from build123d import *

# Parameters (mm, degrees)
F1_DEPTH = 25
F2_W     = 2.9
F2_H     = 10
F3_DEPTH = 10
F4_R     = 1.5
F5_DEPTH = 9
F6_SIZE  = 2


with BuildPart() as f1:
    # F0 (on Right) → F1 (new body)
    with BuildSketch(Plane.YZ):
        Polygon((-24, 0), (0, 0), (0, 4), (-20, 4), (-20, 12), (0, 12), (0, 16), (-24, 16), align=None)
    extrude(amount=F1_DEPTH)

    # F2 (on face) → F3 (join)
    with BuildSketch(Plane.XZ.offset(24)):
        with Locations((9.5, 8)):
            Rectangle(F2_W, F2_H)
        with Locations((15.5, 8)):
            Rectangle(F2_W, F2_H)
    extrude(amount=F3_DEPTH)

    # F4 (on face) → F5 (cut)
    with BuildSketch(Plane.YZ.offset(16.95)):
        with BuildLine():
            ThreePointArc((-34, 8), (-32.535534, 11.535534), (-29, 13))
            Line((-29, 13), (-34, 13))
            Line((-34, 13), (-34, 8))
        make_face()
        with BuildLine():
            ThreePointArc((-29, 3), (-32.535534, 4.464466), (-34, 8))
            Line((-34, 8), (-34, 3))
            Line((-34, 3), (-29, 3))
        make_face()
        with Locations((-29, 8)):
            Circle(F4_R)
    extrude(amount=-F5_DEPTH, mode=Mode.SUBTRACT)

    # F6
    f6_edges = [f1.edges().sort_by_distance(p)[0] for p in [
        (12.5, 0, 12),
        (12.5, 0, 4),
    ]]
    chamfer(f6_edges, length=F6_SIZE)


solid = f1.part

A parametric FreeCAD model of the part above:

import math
import FreeCAD as App
import Part
import Sketcher
from FreeCAD import Vector
Q = App.Units.Quantity


def edges_at(feature, points):
    """Names of the edges that pass closest to the given points."""
    edges = feature.Shape.Edges
    near = lambda p: min(range(len(edges)), key=lambda i: edges[i].distToShape(Part.Vertex(*p))[0])
    return sorted({f"Edge{near(p) + 1}" for p in points})


def add_polygon(sketch, points):
    """Adds a closed chain of lines whose ends are joined by coincident constraints."""
    first, n = sketch.GeometryCount, len(points)
    for a, b in zip(points, points[1:] + points[:1]):
        sketch.addGeometry(Part.LineSegment(App.Vector(*a, 0), App.Vector(*b, 0)), False)
    for i in range(n):
        sketch.addConstraint(Sketcher.Constraint("Coincident", first + i, 2, first + (i + 1) % n, 1))

doc = App.newDocument("Part")
params = doc.addObject("Spreadsheet::Sheet", "Params")
for row, (alias, value) in enumerate([
    ("sketch1_width", "24 mm"),
    ("sketch1_width2", "20 mm"),
    ("sketch1_height", "4 mm"),
    ("sketch1_height2", "8 mm"),
    ("pad1_length", "25 mm"),
    ("sketch2_height", "10 mm"),
    ("sketch2_width", "2.9 mm"),
    ("pad2_length", "10 mm"),
    ("sketch3_diameter", "3 mm"),
    ("sketch3_radius", "5 mm"),
    ("pocket1_length", "9 mm"),
    ("chamfer_size", "2 mm"),
], start=1):
    params.set(f"A{row}", alias)
    params.set(f"B{row}", "=" + value)
    params.setAlias(f"B{row}", alias)

body = doc.addObject("PartDesign::Body", "Body")

# Sketch on YZ plane
sketch1 = doc.addObject("Sketcher::SketchObject", "Sketch")
body.addObject(sketch1)
sketch1.AttachmentSupport = (doc.YZ_Plane, [""])
sketch1.MapMode = "FlatFace"
add_polygon(sketch1, [(-24, 0), (0, 0), (0, 4), (-20, 4), (-20, 12), (0, 12), (0, 16), (-24, 16)])  # lines 0-7
sketch1.addConstraint(Sketcher.Constraint("Horizontal", 0))
sketch1.addConstraint(Sketcher.Constraint("Vertical", 1))
sketch1.addConstraint(Sketcher.Constraint("Horizontal", 2))
sketch1.addConstraint(Sketcher.Constraint("Vertical", 3))
sketch1.addConstraint(Sketcher.Constraint("Horizontal", 4))
sketch1.addConstraint(Sketcher.Constraint("Vertical", 5))
sketch1.addConstraint(Sketcher.Constraint("Horizontal", 6))
sketch1.addConstraint(Sketcher.Constraint("Vertical", 7))
sketch1.addConstraint(Sketcher.Constraint("Coincident", 0, 2, -1, 1))
sketch1.addConstraint(Sketcher.Constraint("PointOnObject", 4, 2, -2))
sketch1.addConstraint(Sketcher.Constraint("Equal", 1, 5))
sketch1.addConstraint(Sketcher.Constraint("DistanceX", 0, 1, 0, 2, Q("24 mm")))
sketch1.addConstraint(Sketcher.Constraint("DistanceX", 2, 2, 2, 1, Q("20 mm")))
sketch1.addConstraint(Sketcher.Constraint("DistanceY", 1, 1, 1, 2, Q("4 mm")))
sketch1.addConstraint(Sketcher.Constraint("DistanceY", 3, 1, 3, 2, Q("8 mm")))
sketch1.setExpression("Constraints[19]", "Params.sketch1_width")
sketch1.setExpression("Constraints[20]", "Params.sketch1_width2")
sketch1.setExpression("Constraints[21]", "Params.sketch1_height")
sketch1.setExpression("Constraints[22]", "Params.sketch1_height2")
pad1 = doc.addObject("PartDesign::Pad", "Pad")
body.addObject(pad1)
pad1.Profile = sketch1
pad1.setExpression("Length", "Params.pad1_length")

# Sketch on XZ plane
sketch2 = doc.addObject("Sketcher::SketchObject", "Sketch001")
body.addObject(sketch2)
sketch2.AttachmentSupport = (doc.XZ_Plane, [""])
sketch2.MapMode = "FlatFace"
sketch2.AttachmentOffset = App.Placement(Vector(0, 0, 24), App.Rotation())
add_polygon(sketch2, [(8.05, 13), (8.05, 3), (10.95, 3), (10.95, 13)])  # lines 0-3
add_polygon(sketch2, [(14.05, 13), (14.05, 3), (16.95, 3), (16.95, 13)])  # lines 4-7
sketch2.addConstraint(Sketcher.Constraint("Vertical", 0))
sketch2.addConstraint(Sketcher.Constraint("Horizontal", 1))
sketch2.addConstraint(Sketcher.Constraint("Vertical", 2))
sketch2.addConstraint(Sketcher.Constraint("Horizontal", 3))
sketch2.addConstraint(Sketcher.Constraint("Vertical", 4))
sketch2.addConstraint(Sketcher.Constraint("Horizontal", 5))
sketch2.addConstraint(Sketcher.Constraint("Vertical", 6))
sketch2.addConstraint(Sketcher.Constraint("Horizontal", 7))
sketch2.addConstraint(Sketcher.Constraint("Horizontal", 1, 2, 4, 2))
sketch2.addConstraint(Sketcher.Constraint("Horizontal", 3, 2, 6, 2))
sketch2.addConstraint(Sketcher.Constraint("Equal", 3, 5))
sketch2.addConstraint(Sketcher.Constraint("DistanceY", 0, 2, 0, 1, Q("10 mm")))
sketch2.addConstraint(Sketcher.Constraint("DistanceX", 1, 1, 1, 2, Q("2.9 mm")))
sketch2.addConstraint(Sketcher.Constraint("DistanceY", -1, 1, 0, 2, Q("3 mm")))
sketch2.addConstraint(Sketcher.Constraint("DistanceX", 0, 2, 4, 2, Q("6 mm")))
sketch2.addConstraint(Sketcher.Constraint("DistanceX", -1, 1, 0, 2, Q("8.05 mm")))
sketch2.setExpression("Constraints[19]", "Params.sketch2_height")
sketch2.setExpression("Constraints[20]", "Params.sketch2_width")
pad2 = doc.addObject("PartDesign::Pad", "Pad001")
body.addObject(pad2)
pad2.Profile = sketch2
pad2.setExpression("Length", "Params.pad2_length")

# Sketch on YZ plane
sketch3 = doc.addObject("Sketcher::SketchObject", "Sketch002")
body.addObject(sketch3)
sketch3.AttachmentSupport = (doc.YZ_Plane, [""])
sketch3.MapMode = "FlatFace"
sketch3.AttachmentOffset = App.Placement(Vector(0, 0, 16.95), App.Rotation())
sketch3.addGeometry(Part.ArcOfCircle(Part.Circle(Vector(-29, 8, 0), Vector(0, 0, 1), 5), math.radians(89.999996), math.radians(180.000004)), False)
sketch3.addGeometry(Part.LineSegment(Vector(-29, 13, 0), Vector(-34, 13, 0)), False)
sketch3.addGeometry(Part.LineSegment(Vector(-34, 13, 0), Vector(-34, 8, 0)), False)
sketch3.addGeometry(Part.ArcOfCircle(Part.Circle(Vector(-29, 8, 0), Vector(0, 0, 1), 5), math.radians(179.999996), math.radians(270.000004)), False)
sketch3.addGeometry(Part.LineSegment(Vector(-34, 8, 0), Vector(-34, 3, 0)), False)
sketch3.addGeometry(Part.LineSegment(Vector(-34, 3, 0), Vector(-29, 3, 0)), False)
sketch3.addGeometry(Part.Circle(Vector(-29, 8, 0), Vector(0, 0, 1), 1.5), False)
sketch3.addConstraint(Sketcher.Constraint("Tangent", 0, 1, 1, 1))
sketch3.addConstraint(Sketcher.Constraint("Coincident", 1, 2, 2, 1))
sketch3.addConstraint(Sketcher.Constraint("Tangent", 2, 2, 0, 2))
sketch3.addConstraint(Sketcher.Constraint("Tangent", 3, 1, 4, 1))
sketch3.addConstraint(Sketcher.Constraint("Coincident", 4, 2, 5, 1))
sketch3.addConstraint(Sketcher.Constraint("Tangent", 5, 2, 3, 2))
sketch3.addConstraint(Sketcher.Constraint("Horizontal", 1))
sketch3.addConstraint(Sketcher.Constraint("Vertical", 2))
sketch3.addConstraint(Sketcher.Constraint("Vertical", 4))
sketch3.addConstraint(Sketcher.Constraint("Horizontal", 5))
sketch3.addConstraint(Sketcher.Constraint("Coincident", 3, 3, 0, 3))
sketch3.addConstraint(Sketcher.Constraint("Coincident", 6, 3, 0, 3))
sketch3.addConstraint(Sketcher.Constraint("Equal", 0, 3))
sketch3.addConstraint(Sketcher.Constraint("Diameter", 6, Q("3 mm")))
sketch3.addConstraint(Sketcher.Constraint("Radius", 0, Q("5 mm")))
sketch3.addConstraint(Sketcher.Constraint("DistanceX", 0, 3, -1, 1, Q("29 mm")))
sketch3.addConstraint(Sketcher.Constraint("DistanceY", -1, 1, 0, 3, Q("8 mm")))
sketch3.setExpression("Constraints[13]", "Params.sketch3_diameter")
sketch3.setExpression("Constraints[14]", "Params.sketch3_radius")
pocket1 = doc.addObject("PartDesign::Pocket", "Pocket")
body.addObject(pocket1)
pocket1.Profile = sketch3
pocket1.setExpression("Length", "Params.pocket1_length")
doc.recompute()

chamfer = doc.addObject("PartDesign::Chamfer", "Chamfer")
body.addObject(chamfer)
chamfer.Base = (pocket1, edges_at(pocket1, [(12.5, 0, 12), (12.5, 0, 4)]))
chamfer.setExpression("Size", "Params.chamfer_size")

doc.recompute()
